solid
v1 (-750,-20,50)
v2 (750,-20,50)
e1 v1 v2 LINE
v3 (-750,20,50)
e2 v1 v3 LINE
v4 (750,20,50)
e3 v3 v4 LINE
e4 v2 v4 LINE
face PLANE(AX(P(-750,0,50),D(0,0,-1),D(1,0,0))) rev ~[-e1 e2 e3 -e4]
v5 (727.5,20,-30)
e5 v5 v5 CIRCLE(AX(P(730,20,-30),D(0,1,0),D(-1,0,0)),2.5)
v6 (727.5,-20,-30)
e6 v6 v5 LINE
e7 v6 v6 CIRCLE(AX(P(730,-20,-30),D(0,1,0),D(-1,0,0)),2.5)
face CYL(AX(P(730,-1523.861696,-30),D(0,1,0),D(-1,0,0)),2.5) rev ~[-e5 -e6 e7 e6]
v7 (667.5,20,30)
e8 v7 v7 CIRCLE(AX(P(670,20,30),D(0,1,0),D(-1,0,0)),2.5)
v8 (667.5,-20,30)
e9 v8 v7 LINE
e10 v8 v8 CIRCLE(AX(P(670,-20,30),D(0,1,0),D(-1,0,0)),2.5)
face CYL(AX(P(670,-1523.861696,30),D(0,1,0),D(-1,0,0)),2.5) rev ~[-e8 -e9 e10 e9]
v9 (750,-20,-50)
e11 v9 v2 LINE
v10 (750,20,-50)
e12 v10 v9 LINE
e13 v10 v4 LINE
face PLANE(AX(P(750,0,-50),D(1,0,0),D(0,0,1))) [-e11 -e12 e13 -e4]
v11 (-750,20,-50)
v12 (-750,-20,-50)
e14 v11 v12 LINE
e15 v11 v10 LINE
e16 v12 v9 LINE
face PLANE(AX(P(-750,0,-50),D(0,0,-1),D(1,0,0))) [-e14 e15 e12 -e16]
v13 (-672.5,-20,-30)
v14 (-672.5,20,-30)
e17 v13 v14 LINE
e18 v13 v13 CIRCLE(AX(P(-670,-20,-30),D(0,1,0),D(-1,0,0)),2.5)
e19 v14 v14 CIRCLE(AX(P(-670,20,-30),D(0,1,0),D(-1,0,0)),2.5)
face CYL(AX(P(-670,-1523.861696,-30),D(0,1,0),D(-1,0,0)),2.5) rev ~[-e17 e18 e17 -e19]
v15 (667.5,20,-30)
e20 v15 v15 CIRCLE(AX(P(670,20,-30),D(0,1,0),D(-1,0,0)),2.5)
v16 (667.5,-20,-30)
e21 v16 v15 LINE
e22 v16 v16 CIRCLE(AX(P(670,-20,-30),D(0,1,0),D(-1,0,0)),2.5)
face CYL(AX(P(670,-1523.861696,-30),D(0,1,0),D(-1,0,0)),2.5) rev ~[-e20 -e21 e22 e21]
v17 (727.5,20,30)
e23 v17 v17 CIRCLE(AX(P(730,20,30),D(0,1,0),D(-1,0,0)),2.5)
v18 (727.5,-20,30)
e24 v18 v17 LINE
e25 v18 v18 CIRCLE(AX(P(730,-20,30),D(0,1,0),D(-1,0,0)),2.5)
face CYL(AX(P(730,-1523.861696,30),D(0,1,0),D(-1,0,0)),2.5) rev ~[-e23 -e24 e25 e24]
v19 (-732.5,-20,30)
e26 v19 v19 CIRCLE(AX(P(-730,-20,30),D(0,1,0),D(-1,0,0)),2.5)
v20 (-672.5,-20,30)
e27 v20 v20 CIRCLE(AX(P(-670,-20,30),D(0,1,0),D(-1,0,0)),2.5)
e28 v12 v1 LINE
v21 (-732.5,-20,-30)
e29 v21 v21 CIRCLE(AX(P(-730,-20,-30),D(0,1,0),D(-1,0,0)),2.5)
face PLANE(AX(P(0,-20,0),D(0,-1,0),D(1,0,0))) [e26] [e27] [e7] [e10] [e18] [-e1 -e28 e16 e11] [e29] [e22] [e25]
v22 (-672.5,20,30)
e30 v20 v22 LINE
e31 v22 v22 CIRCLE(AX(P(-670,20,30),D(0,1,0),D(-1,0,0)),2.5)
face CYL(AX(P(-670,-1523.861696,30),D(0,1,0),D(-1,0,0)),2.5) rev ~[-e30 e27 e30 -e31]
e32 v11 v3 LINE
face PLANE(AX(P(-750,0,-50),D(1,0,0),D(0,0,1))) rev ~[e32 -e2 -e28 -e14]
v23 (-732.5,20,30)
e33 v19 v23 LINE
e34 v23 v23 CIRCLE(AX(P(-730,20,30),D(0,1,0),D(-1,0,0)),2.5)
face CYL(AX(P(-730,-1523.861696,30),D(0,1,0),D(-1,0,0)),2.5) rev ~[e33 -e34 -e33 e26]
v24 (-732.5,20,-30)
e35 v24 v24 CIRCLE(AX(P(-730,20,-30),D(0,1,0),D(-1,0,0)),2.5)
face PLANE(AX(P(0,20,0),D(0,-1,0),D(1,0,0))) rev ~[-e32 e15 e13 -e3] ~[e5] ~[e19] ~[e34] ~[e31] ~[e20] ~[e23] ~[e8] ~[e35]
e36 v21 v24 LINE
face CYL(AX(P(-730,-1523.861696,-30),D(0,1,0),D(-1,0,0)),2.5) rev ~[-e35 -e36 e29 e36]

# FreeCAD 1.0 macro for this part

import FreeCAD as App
import Part
import Sketcher
from FreeCAD import Vector

doc = App.newDocument("Part")
body = doc.addObject("PartDesign::Body", "Body")

# Sketch on XZ plane
sketch1 = doc.addObject("Sketcher::SketchObject", "Sketch")
body.addObject(sketch1)
sketch1.AttachmentSupport = (doc.XZ_Plane, [""])
sketch1.MapMode = "FlatFace"
sketch1.addGeometry(Part.LineSegment(Vector(-750, 50, 0), Vector(-750, -50, 0)), False)
sketch1.addGeometry(Part.LineSegment(Vector(-750, -50, 0), Vector(750, -50, 0)), False)
sketch1.addGeometry(Part.LineSegment(Vector(750, -50, 0), Vector(750, 50, 0)), False)
sketch1.addGeometry(Part.LineSegment(Vector(750, 50, 0), Vector(-750, 50, 0)), False)
sketch1.addConstraint(Sketcher.Constraint("Coincident", 0, 2, 1, 1))
sketch1.addConstraint(Sketcher.Constraint("Coincident", 1, 2, 2, 1))
sketch1.addConstraint(Sketcher.Constraint("Coincident", 2, 2, 3, 1))
sketch1.addConstraint(Sketcher.Constraint("Coincident", 3, 2, 0, 1))
sketch1.addConstraint(Sketcher.Constraint("Vertical", 0))
sketch1.addConstraint(Sketcher.Constraint("Horizontal", 1))
sketch1.addConstraint(Sketcher.Constraint("Vertical", 2))
sketch1.addConstraint(Sketcher.Constraint("Horizontal", 3))
sketch1.addConstraint(Sketcher.Constraint("Symmetric", 0, 2, 2, 2, -1, 1))
sketch1.addConstraint(Sketcher.Constraint("DistanceX", 1, 1, 1, 2, 1500.0))
sketch1.addConstraint(Sketcher.Constraint("DistanceY", 0, 2, 0, 1, 100.0))
pad1 = doc.addObject("PartDesign::Pad", "Pad")
body.addObject(pad1)
pad1.Profile = sketch1
pad1.Length = 40
pad1.Midplane = True

# Sketch on XZ plane
sketch2 = doc.addObject("Sketcher::SketchObject", "Sketch001")
body.addObject(sketch2)
sketch2.AttachmentSupport = (doc.XZ_Plane, [""])
sketch2.MapMode = "FlatFace"
sketch2.AttachmentOffset = App.Placement(Vector(0, 0, 20), App.Rotation())
sketch2.addGeometry(Part.Circle(Vector(-730, 30, 0), Vector(0, 0, 1), 2.5), False)
sketch2.addGeometry(Part.Circle(Vector(-730, -30, 0), Vector(0, 0, 1), 2.5), False)
sketch2.addGeometry(Part.Circle(Vector(-670, 30, 0), Vector(0, 0, 1), 2.5), False)
sketch2.addGeometry(Part.Circle(Vector(-670, -30, 0), Vector(0, 0, 1), 2.5), False)
sketch2.addGeometry(Part.Circle(Vector(670, 30, 0), Vector(0, 0, 1), 2.5), False)
sketch2.addGeometry(Part.Circle(Vector(730, 30, 0), Vector(0, 0, 1), 2.5), False)
sketch2.addGeometry(Part.Circle(Vector(670, -30, 0), Vector(0, 0, 1), 2.5), False)
sketch2.addGeometry(Part.Circle(Vector(730, -30, 0), Vector(0, 0, 1), 2.5), False)
sketch2.addConstraint(Sketcher.Constraint("Equal", 0, 1))
sketch2.addConstraint(Sketcher.Constraint("Equal", 1, 2))
sketch2.addConstraint(Sketcher.Constraint("Equal", 2, 3))
sketch2.addConstraint(Sketcher.Constraint("Equal", 3, 4))
sketch2.addConstraint(Sketcher.Constraint("Equal", 4, 5))
sketch2.addConstraint(Sketcher.Constraint("Equal", 5, 6))
sketch2.addConstraint(Sketcher.Constraint("Equal", 6, 7))
sketch2.addConstraint(Sketcher.Constraint("Symmetric", 3, 3, 4, 3, -1, 1))
sketch2.addConstraint(Sketcher.Constraint("Symmetric", 1, 3, 5, 3, -1, 1))
sketch2.addConstraint(Sketcher.Constraint("Symmetric", 2, 3, 6, 3, -1, 1))
sketch2.addConstraint(Sketcher.Constraint("Symmetric", 0, 3, 7, 3, -1, 1))
sketch2.addConstraint(Sketcher.Constraint("Symmetric", 2, 3, 4, 3, -2))
sketch2.addConstraint(Sketcher.Constraint("Symmetric", 0, 3, 5, 3, -2))
sketch2.addConstraint(Sketcher.Constraint("Horizontal", 0, 3, 2, 3))
sketch2.addConstraint(Sketcher.Constraint("Diameter", 0, 5.0))
sketch2.addConstraint(Sketcher.Constraint("DistanceX", 0, 3, -1, 1, 730.0))
sketch2.addConstraint(Sketcher.Constraint("DistanceY", -1, 1, 0, 3, 30.0))
sketch2.addConstraint(Sketcher.Constraint("DistanceX", 2, 3, -1, 1, 670.0))
doc.recompute()
hole = doc.addObject("PartDesign::Hole", "Hole")
body.addObject(hole)
hole.Profile = sketch2
hole.ThreadType = "None"
hole.Diameter = 5
hole.DepthType = "ThroughAll"

doc.recompute()
